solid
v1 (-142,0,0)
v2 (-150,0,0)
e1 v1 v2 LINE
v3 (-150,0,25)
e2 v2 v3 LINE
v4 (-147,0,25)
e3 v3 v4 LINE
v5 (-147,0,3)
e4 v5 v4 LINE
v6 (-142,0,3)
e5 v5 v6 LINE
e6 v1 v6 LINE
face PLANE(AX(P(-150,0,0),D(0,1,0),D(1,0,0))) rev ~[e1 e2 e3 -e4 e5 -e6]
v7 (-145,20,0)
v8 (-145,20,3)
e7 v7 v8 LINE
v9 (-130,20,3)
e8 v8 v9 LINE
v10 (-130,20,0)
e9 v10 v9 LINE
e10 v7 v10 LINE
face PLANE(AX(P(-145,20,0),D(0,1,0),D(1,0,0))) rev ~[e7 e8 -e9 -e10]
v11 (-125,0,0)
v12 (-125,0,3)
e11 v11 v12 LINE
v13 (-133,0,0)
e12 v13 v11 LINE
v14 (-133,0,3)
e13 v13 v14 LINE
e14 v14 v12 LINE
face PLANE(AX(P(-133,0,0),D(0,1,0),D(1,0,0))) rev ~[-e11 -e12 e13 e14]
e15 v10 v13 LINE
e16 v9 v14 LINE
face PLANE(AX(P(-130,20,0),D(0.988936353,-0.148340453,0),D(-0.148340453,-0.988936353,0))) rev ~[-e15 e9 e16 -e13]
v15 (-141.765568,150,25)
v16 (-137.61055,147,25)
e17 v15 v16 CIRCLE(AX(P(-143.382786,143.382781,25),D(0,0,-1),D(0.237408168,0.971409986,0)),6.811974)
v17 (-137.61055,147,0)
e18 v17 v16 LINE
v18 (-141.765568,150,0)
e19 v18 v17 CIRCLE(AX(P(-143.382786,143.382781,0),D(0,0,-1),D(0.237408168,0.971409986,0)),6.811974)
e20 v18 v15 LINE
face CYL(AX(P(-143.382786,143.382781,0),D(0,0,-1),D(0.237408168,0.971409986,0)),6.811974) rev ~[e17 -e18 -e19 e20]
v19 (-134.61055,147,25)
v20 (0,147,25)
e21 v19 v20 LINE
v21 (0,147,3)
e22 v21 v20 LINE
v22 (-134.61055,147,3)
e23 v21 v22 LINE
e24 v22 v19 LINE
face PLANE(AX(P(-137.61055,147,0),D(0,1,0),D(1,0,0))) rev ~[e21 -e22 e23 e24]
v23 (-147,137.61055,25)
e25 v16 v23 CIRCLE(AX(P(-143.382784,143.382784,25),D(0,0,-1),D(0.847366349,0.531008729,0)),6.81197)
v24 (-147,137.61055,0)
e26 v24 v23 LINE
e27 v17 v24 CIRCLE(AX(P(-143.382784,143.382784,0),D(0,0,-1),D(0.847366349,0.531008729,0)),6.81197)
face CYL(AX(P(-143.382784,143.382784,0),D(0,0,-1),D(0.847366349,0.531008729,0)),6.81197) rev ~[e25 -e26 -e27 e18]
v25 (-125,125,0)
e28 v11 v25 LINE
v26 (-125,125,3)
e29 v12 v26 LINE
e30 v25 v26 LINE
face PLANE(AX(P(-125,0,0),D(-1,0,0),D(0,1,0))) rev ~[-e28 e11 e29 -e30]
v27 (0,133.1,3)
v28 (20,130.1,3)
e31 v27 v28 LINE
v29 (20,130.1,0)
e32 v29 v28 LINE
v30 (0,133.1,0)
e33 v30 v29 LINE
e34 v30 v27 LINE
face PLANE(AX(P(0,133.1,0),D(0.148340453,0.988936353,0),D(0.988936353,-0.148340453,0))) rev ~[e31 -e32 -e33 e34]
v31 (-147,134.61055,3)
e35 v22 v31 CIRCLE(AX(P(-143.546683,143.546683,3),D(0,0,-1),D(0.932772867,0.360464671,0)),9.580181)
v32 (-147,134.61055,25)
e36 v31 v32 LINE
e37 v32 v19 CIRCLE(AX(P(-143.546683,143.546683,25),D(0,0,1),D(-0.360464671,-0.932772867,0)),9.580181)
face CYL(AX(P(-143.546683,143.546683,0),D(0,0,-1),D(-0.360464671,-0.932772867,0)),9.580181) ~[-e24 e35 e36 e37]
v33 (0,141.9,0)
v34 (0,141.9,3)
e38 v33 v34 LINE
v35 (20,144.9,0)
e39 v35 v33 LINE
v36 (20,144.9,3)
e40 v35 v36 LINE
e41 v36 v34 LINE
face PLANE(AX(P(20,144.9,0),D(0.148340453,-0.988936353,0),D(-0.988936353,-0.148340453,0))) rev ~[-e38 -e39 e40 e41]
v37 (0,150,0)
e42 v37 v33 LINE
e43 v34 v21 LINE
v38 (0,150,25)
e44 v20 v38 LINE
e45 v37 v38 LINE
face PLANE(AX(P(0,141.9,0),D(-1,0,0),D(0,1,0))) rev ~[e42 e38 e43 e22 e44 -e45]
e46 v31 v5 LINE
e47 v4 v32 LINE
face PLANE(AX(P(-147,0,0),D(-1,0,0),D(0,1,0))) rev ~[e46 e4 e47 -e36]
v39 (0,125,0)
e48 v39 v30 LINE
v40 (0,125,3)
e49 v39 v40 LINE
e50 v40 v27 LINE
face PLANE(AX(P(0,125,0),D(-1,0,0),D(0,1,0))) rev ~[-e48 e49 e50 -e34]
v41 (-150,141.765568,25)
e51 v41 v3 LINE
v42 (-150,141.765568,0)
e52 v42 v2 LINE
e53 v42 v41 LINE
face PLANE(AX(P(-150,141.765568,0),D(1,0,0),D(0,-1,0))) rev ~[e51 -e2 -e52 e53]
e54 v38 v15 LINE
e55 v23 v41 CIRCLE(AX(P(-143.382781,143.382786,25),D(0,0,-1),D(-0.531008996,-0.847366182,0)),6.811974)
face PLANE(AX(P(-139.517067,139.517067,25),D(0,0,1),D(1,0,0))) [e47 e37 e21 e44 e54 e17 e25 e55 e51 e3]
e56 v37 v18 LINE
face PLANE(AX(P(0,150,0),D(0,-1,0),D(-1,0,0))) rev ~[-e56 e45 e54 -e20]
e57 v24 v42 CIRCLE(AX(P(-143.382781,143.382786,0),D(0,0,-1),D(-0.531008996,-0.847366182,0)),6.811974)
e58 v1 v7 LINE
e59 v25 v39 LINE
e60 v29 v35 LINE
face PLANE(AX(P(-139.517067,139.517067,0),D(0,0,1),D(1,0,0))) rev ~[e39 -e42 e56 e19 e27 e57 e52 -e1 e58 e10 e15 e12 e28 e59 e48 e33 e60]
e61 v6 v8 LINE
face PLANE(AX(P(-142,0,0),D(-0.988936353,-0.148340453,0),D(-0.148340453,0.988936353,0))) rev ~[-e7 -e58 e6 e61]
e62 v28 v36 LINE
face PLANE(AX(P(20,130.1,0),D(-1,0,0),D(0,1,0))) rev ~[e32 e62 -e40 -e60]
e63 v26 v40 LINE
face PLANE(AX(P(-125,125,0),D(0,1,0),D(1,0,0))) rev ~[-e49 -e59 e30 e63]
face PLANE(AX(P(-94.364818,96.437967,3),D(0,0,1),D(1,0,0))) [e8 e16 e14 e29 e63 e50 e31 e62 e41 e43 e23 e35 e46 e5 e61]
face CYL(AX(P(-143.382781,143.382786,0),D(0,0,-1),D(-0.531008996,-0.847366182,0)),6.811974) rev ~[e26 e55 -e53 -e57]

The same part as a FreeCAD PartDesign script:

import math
import FreeCAD as App
import Part
import Sketcher
Q = App.Units.Quantity

doc = App.newDocument("Part")
body = doc.addObject("PartDesign::Body", "Body")

# Sketch on XY plane
sketch1 = body.newObject("Sketcher::SketchObject", "Sketch")
sketch1.AttachmentSupport = (doc.getObject("XY_Plane"), [""])
sketch1.MapMode = "FlatFace"
sketch1.addGeometry([
    Part.LineSegment(App.Vector(0, 142, 0), App.Vector(0, 147, 0)),  # 0
    Part.LineSegment(App.Vector(0, 147, 0), App.Vector(-135, 147, 0)),  # 1
    Part.ArcOfCircle(Part.Circle(App.Vector(-144, 144, 0), App.Vector(0, 0, 1), 10), math.radians(-111), math.radians(21)),  # 2
    Part.LineSegment(App.Vector(-147, 135, 0), App.Vector(-147, 0, 0)),  # 3
    Part.LineSegment(App.Vector(-147, 0, 0), App.Vector(-142, 0, 0)),  # 4
    Part.LineSegment(App.Vector(-142, 0, 0), App.Vector(-145, 20, 0)),  # 5
    Part.LineSegment(App.Vector(-145, 20, 0), App.Vector(-130, 20, 0)),  # 6
    Part.LineSegment(App.Vector(-130, 20, 0), App.Vector(-133, 0, 0)),  # 7
    Part.LineSegment(App.Vector(-133, 0, 0), App.Vector(-125, 0, 0)),  # 8
    Part.LineSegment(App.Vector(-125, 0, 0), App.Vector(-125, 125, 0)),  # 9
    Part.LineSegment(App.Vector(-125, 125, 0), App.Vector(0, 125, 0)),  # 10
    Part.LineSegment(App.Vector(0, 125, 0), App.Vector(0, 133, 0)),  # 11
    Part.LineSegment(App.Vector(0, 133, 0), App.Vector(20, 130, 0)),  # 12
    Part.LineSegment(App.Vector(20, 130, 0), App.Vector(20, 145, 0)),  # 13
    Part.LineSegment(App.Vector(20, 145, 0), App.Vector(0, 142, 0)),  # 14
], False)
sketch1.addConstraint([
    Sketcher.Constraint("Coincident", 0, 2, 1, 1),
    Sketcher.Constraint("Coincident", 1, 2, 2, 2),
    Sketcher.Constraint("Coincident", 2, 1, 3, 1),
    Sketcher.Constraint("Coincident", 3, 2, 4, 1),
    Sketcher.Constraint("Coincident", 4, 2, 5, 1),
    Sketcher.Constraint("Coincident", 5, 2, 6, 1),
    Sketcher.Constraint("Coincident", 6, 2, 7, 1),
    Sketcher.Constraint("Coincident", 7, 2, 8, 1),
    Sketcher.Constraint("Coincident", 8, 2, 9, 1),
    Sketcher.Constraint("Coincident", 9, 2, 10, 1),
    Sketcher.Constraint("Coincident", 10, 2, 11, 1),
    Sketcher.Constraint("Coincident", 11, 2, 12, 1),
    Sketcher.Constraint("Coincident", 12, 2, 13, 1),
    Sketcher.Constraint("Coincident", 13, 2, 14, 1),
    Sketcher.Constraint("Coincident", 14, 2, 0, 1),
    Sketcher.Constraint("Vertical", 0),
    Sketcher.Constraint("Horizontal", 1),
    Sketcher.Constraint("Vertical", 3),
    Sketcher.Constraint("Horizontal", 4),
    Sketcher.Constraint("Horizontal", 6),
    Sketcher.Constraint("Horizontal", 8),
    Sketcher.Constraint("Vertical", 9),
    Sketcher.Constraint("Horizontal", 10),
    Sketcher.Constraint("Vertical", 11),
    Sketcher.Constraint("Vertical", 13),
    Sketcher.Constraint("PointOnObject", 0, 2, -2),
    Sketcher.Constraint("PointOnObject", 3, 2, -1),
    Sketcher.Constraint("PointOnObject", 7, 2, -1),
    Sketcher.Constraint("PointOnObject", 10, 2, -2),
    Sketcher.Constraint("Perpendicular", 7, 12),
    Sketcher.Constraint("Perpendicular", 5, 14),
    Sketcher.Constraint("Equal", 1, 3),
    Sketcher.Constraint("Equal", 10, 9),
    Sketcher.Constraint("Equal", 5, 7),
    Sketcher.Constraint("Equal", 7, 12),
    Sketcher.Constraint("DistanceX", 4, 1, 4, 2, Q("5 mm")),
    Sketcher.Constraint("DistanceX", 6, 1, 6, 2, Q("15 mm")),
    Sketcher.Constraint("DistanceX", 8, 1, 8, 2, Q("8 mm")),
    Sketcher.Constraint("DistanceX", 10, 1, 10, 2, Q("125 mm")),
    Sketcher.Constraint("DistanceY", 0, 1, 0, 2, Q("5.1 mm")),
    Sketcher.Constraint("DistanceY", 11, 1, 11, 2, Q("8.1 mm")),
    Sketcher.Constraint("DistanceY", 13, 1, 13, 2, Q("14.8 mm")),
    Sketcher.Constraint("DistanceY", -1, 1, 0, 2, Q("147 mm")),
    Sketcher.Constraint("DistanceY", -1, 1, 5, 2, Q("20 mm")),
    Sketcher.Constraint("Radius", 2, Q("9.580181 mm")),
    Sketcher.Constraint("DistanceX", 1, 2, 1, 1, Q("134.61055 mm")),
])
pad1 = body.newObject("PartDesign::Pad", "Pad")
pad1.Profile = sketch1
pad1.Length = 3

# Sketch on XY plane
sketch2 = body.newObject("Sketcher::SketchObject", "Sketch001")
sketch2.AttachmentSupport = (doc.getObject("XY_Plane"), [""])
sketch2.MapMode = "FlatFace"
sketch2.addGeometry([
    Part.ArcOfCircle(Part.Circle(App.Vector(-143.4, 143.4, 0), App.Vector(0, 0, 1), 6.8), math.radians(-166), math.radians(-122)),  # 0
    Part.LineSegment(App.Vector(-150, 141.8, 0), App.Vector(-150, 0, 0)),  # 1
    Part.LineSegment(App.Vector(-150, 0, 0), App.Vector(-147, 0, 0)),  # 2
    Part.LineSegment(App.Vector(-147, 0, 0), App.Vector(-147, 137.6, 0)),  # 3
    Part.LineSegment(App.Vector(0, 150, 0), App.Vector(-141.8, 150, 0)),  # 4
    Part.ArcOfCircle(Part.Circle(App.Vector(-143.4, 143.4, 0), App.Vector(0, 0, 1), 6.8), math.radians(32), math.radians(76)),  # 5
    Part.LineSegment(App.Vector(-137.6, 147, 0), App.Vector(0, 147, 0)),  # 6
    Part.LineSegment(App.Vector(0, 147, 0), App.Vector(0, 150, 0)),  # 7
], False)
sketch2.addConstraint([
    Sketcher.Constraint("Coincident", 0, 1, 1, 1),
    Sketcher.Constraint("Coincident", 1, 2, 2, 1),
    Sketcher.Constraint("Coincident", 2, 2, 3, 1),
    Sketcher.Constraint("Coincident", 3, 2, 0, 2),
    Sketcher.Constraint("Coincident", 4, 2, 5, 2),
    Sketcher.Constraint("Coincident", 5, 1, 6, 1),
    Sketcher.Constraint("Coincident", 6, 2, 7, 1),
    Sketcher.Constraint("Coincident", 7, 2, 4, 1),
    Sketcher.Constraint("Vertical", 1),
    Sketcher.Constraint("Horizontal", 2),
    Sketcher.Constraint("Vertical", 3),
    Sketcher.Constraint("Horizontal", 4),
    Sketcher.Constraint("Horizontal", 6),
    Sketcher.Constraint("Vertical", 7),
    Sketcher.Constraint("Coincident", 5, 3, 0, 3),
    Sketcher.Constraint("Equal", 0, 5),
    Sketcher.Constraint("PointOnObject", 1, 2, -1),
    Sketcher.Constraint("PointOnObject", 6, 2, -2),
    Sketcher.Constraint("Equal", 4, 1),
    Sketcher.Constraint("Equal", 6, 3),
    Sketcher.Constraint("Equal", 2, 7),
    Sketcher.Constraint("DistanceX", 2, 1, 2, 2, Q("3 mm")),
    Sketcher.Constraint("DistanceX", 0, 1, -1, 1, Q("150 mm")),
    Sketcher.Constraint("Radius", 0, Q("6.811974 mm")),
    Sketcher.Constraint("DistanceX", 4, 2, 4, 1, Q("141.765568 mm")),
])
pad2 = body.newObject("PartDesign::Pad", "Pad001")
pad2.Profile = sketch2
pad2.Length = 25

# Sketch on XY plane
sketch3 = body.newObject("Sketcher::SketchObject", "Sketch002")
sketch3.AttachmentSupport = (doc.getObject("XY_Plane"), [""])
sketch3.MapMode = "FlatFace"
sketch3.addGeometry([
    Part.LineSegment(App.Vector(-134.6, 147, 0), App.Vector(-137.6, 147, 0)),
    Part.ArcOfCircle(Part.Circle(App.Vector(-143.4, 143.4, 0), App.Vector(0, 0, 1), 6.8), math.radians(-122), math.radians(32)),
    Part.LineSegment(App.Vector(-147, 137.6, 0), App.Vector(-147, 134.6, 0)),
    Part.ArcOfCircle(Part.Circle(App.Vector(-143.5, 143.5, 0), App.Vector(0, 0, 1), 9.6), math.radians(-111), math.radians(21)),
], False)
sketch3.addConstraint([
    Sketcher.Constraint("Coincident", 0, 2, 1, 2),
    Sketcher.Constraint("Coincident", 1, 1, 2, 1),
    Sketcher.Constraint("Coincident", 2, 2, 3, 1),
    Sketcher.Constraint("Coincident", 3, 2, 0, 1),
    Sketcher.Constraint("Horizontal", 0),
    Sketcher.Constraint("Vertical", 2),
    Sketcher.Constraint("Equal", 0, 2),
    Sketcher.Constraint("DistanceX", 0, 2, 0, 1, Q("3 mm")),
    Sketcher.Constraint("DistanceY", -1, 1, 0, 2, Q("147 mm")),
    Sketcher.Constraint("DistanceX", 1, 1, -1, 1, Q("147 mm")),
    Sketcher.Constraint("Radius", 1, Q("6.81197 mm")),
    Sketcher.Constraint("Radius", 3, Q("9.580181 mm")),
    Sketcher.Constraint("DistanceX", 3, 3, 1, 3, Q("0.163899 mm")),
    Sketcher.Constraint("DistanceY", 1, 3, 3, 3, Q("0.163899 mm")),
])
pad3 = body.newObject("PartDesign::Pad", "Pad002")
pad3.Profile = sketch3
pad3.Length = 25

doc.recompute()
